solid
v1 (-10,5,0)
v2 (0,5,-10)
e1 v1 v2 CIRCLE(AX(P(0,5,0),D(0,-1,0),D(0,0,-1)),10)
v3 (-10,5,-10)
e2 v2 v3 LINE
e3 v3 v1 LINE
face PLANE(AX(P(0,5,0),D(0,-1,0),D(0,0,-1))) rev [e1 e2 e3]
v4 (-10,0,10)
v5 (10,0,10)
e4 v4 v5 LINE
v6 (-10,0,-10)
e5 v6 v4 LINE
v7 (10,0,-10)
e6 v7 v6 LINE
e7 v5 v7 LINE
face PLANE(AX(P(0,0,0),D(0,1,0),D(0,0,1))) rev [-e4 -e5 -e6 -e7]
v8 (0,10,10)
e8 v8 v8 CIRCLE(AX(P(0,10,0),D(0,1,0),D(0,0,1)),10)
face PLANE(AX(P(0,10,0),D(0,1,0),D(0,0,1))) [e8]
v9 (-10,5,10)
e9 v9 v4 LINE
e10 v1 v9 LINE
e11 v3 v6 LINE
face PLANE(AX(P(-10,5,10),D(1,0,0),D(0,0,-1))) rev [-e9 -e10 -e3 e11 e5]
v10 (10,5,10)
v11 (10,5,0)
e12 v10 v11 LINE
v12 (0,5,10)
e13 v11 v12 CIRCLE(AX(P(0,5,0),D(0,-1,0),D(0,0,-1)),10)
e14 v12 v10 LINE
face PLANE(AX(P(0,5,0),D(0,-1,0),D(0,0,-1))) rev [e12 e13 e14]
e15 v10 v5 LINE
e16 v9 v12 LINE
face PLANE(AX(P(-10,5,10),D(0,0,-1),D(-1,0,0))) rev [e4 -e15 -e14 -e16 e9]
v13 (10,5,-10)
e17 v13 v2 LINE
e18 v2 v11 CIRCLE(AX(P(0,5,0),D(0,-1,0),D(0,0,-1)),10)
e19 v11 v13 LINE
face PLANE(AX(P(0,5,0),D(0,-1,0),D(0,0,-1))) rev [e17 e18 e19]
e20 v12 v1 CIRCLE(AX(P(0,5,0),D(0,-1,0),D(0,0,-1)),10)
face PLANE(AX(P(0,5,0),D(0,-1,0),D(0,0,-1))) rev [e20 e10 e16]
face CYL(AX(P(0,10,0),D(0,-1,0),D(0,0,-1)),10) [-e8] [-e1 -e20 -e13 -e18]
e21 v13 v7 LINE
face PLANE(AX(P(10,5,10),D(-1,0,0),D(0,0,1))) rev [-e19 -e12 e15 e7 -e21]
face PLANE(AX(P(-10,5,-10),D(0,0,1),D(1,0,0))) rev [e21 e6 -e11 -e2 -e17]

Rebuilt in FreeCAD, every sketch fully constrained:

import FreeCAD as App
import Part
import Sketcher

doc = App.newDocument("Part")
body = doc.addObject("PartDesign::Body", "Body")

# Sketch on XZ plane
sketch1 = body.newObject("Sketcher::SketchObject", "Sketch")
sketch1.AttachmentSupport = (doc.getObject("XZ_Plane"), [""])
sketch1.MapMode = "FlatFace"
sketch1.addGeometry(Part.Circle(App.Vector(0, 0, 0), App.Vector(0, 0, 1), 10), False)
sketch1.addConstraint(Sketcher.Constraint("Coincident", 0, 3, -1, 1))
sketch1.addConstraint(Sketcher.Constraint("Diameter", 0, 20.0))
pad1 = body.newObject("PartDesign::Pad", "Pad")
pad1.Profile = sketch1
pad1.Length = 10
pad1.Reversed = True

# Sketch on XZ plane
sketch2 = body.newObject("Sketcher::SketchObject", "Sketch001")
sketch2.AttachmentSupport = (doc.getObject("XZ_Plane"), [""])
sketch2.MapMode = "FlatFace"
sketch2.addGeometry(Part.LineSegment(App.Vector(-10, -10, 0), App.Vector(-10, 10, 0)), False)
sketch2.addGeometry(Part.LineSegment(App.Vector(-10, 10, 0), App.Vector(10, 10, 0)), False)
sketch2.addGeometry(Part.LineSegment(App.Vector(10, 10, 0), App.Vector(10, -10, 0)), False)
sketch2.addGeometry(Part.LineSegment(App.Vector(10, -10, 0), App.Vector(-10, -10, 0)), False)
sketch2.addConstraint(Sketcher.Constraint("Coincident", 0, 2, 1, 1))
sketch2.addConstraint(Sketcher.Constraint("Coincident", 1, 2, 2, 1))
sketch2.addConstraint(Sketcher.Constraint("Coincident", 2, 2, 3, 1))
sketch2.addConstraint(Sketcher.Constraint("Coincident", 3, 2, 0, 1))
sketch2.addConstraint(Sketcher.Constraint("Vertical", 0))
sketch2.addConstraint(Sketcher.Constraint("Horizontal", 1))
sketch2.addConstraint(Sketcher.Constraint("Vertical", 2))
sketch2.addConstraint(Sketcher.Constraint("Horizontal", 3))
sketch2.addConstraint(Sketcher.Constraint("Symmetric", 0, 2, 2, 2, -1, 1))
sketch2.addConstraint(Sketcher.Constraint("Equal", 3, 0))
sketch2.addConstraint(Sketcher.Constraint("DistanceX", 1, 1, 1, 2, 20.0))
pad2 = body.newObject("PartDesign::Pad", "Pad001")
pad2.Profile = sketch2
pad2.Length = 5
pad2.Reversed = True

doc.recompute()
